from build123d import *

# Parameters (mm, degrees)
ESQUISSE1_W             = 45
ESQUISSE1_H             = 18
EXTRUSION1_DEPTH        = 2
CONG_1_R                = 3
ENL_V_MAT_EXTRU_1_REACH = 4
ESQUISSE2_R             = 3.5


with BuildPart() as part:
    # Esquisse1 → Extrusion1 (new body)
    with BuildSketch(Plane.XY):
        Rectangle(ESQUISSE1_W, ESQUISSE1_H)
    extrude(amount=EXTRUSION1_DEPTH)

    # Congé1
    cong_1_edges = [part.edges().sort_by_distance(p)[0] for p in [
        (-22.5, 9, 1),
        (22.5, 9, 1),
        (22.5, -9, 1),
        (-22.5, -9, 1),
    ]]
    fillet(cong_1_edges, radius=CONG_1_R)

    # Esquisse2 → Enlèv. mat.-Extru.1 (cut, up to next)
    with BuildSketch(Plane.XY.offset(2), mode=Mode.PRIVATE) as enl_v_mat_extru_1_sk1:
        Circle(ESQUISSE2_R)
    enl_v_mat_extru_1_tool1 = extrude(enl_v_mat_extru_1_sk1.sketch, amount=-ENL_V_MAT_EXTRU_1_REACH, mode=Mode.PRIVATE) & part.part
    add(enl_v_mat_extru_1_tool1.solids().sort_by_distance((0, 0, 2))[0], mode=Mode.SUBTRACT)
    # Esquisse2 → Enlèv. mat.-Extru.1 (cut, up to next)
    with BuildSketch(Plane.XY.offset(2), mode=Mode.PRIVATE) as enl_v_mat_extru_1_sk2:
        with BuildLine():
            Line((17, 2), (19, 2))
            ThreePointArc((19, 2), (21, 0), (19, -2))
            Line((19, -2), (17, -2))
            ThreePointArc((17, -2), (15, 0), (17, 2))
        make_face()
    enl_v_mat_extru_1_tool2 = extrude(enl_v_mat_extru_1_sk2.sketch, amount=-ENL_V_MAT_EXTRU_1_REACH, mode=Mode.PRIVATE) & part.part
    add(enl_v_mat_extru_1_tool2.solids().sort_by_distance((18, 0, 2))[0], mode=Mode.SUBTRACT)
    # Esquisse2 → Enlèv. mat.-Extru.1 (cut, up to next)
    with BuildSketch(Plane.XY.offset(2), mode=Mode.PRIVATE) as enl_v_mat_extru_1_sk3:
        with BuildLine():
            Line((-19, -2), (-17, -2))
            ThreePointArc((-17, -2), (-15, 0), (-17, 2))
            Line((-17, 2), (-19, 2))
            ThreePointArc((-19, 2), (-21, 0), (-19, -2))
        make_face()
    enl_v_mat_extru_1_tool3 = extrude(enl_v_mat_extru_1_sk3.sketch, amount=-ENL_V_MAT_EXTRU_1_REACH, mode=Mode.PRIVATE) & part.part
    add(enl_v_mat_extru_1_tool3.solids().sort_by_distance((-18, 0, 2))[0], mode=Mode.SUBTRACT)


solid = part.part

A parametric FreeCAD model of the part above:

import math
import FreeCAD as App
import Part
import Sketcher

V = App.Vector
Q = App.Units.Quantity


def edges_at(feature, points):
    """Names of the edges that pass closest to the given points."""
    edges = feature.Shape.Edges
    near = lambda p: min(range(len(edges)), key=lambda i: edges[i].distToShape(Part.Vertex(*p))[0])
    return sorted({f"Edge{near(p) + 1}" for p in points})

doc = App.newDocument("Part")
body = doc.addObject("PartDesign::Body", "Body")

sketch1 = body.newObject("Sketcher::SketchObject", "Sketch")
sketch1.AttachmentSupport = (doc.getObject("XY_Plane"), [""])
sketch1.MapMode = "FlatFace"
sketch1.addGeometry(Part.LineSegment(V(-22.5, 9, 0), V(-22.5, -9, 0)), False)
sketch1.addGeometry(Part.LineSegment(V(-22.5, -9, 0), V(22.5, -9, 0)), False)
sketch1.addGeometry(Part.LineSegment(V(22.5, -9, 0), V(22.5, 9, 0)), False)
sketch1.addGeometry(Part.LineSegment(V(22.5, 9, 0), V(-22.5, 9, 0)), False)
sketch1.addConstraint(Sketcher.Constraint("Coincident", 0, 2, 1, 1))
sketch1.addConstraint(Sketcher.Constraint("Coincident", 1, 2, 2, 1))
sketch1.addConstraint(Sketcher.Constraint("Coincident", 2, 2, 3, 1))
sketch1.addConstraint(Sketcher.Constraint("Coincident", 3, 2, 0, 1))
sketch1.addConstraint(Sketcher.Constraint("Vertical", 0))
sketch1.addConstraint(Sketcher.Constraint("Horizontal", 1))
sketch1.addConstraint(Sketcher.Constraint("Vertical", 2))
sketch1.addConstraint(Sketcher.Constraint("Horizontal", 3))
sketch1.addConstraint(Sketcher.Constraint("Symmetric", 0, 2, 2, 2, -1, 1))
sketch1.addConstraint(Sketcher.Constraint("DistanceX", 1, 1, 1, 2, Q("45 mm")))
sketch1.addConstraint(Sketcher.Constraint("DistanceY", 0, 2, 0, 1, Q("18 mm")))
pad1 = body.newObject("PartDesign::Pad", "Pad")
pad1.Profile = sketch1
pad1.Length = 2
doc.recompute()

fillet = body.newObject("PartDesign::Fillet", "Fillet")
fillet.Base = (pad1, edges_at(pad1, [
    (-22.5, 9, 1),
    (22.5, 9, 1),
    (22.5, -9, 1),
    (-22.5, -9, 1),
]))
fillet.Radius = 3

sketch2 = body.newObject("Sketcher::SketchObject", "Sketch001")
sketch2.AttachmentSupport = (doc.getObject("XY_Plane"), [""])
sketch2.MapMode = "FlatFace"
sketch2.AttachmentOffset = App.Placement(V(0, 0, 2), App.Rotation())
sketch2.addGeometry(Part.Circle(V(0, 0, 0), V(0, 0, 1), 3.5), False)
sketch2.addConstraint(Sketcher.Constraint("Coincident", 0, 3, -1, 1))
sketch2.addConstraint(Sketcher.Constraint("Diameter", 0, Q("7 mm")))
pocket1 = body.newObject("PartDesign::Pocket", "Pocket")
pocket1.Profile = sketch2
pocket1.Type = "UpToFirst"

sketch3 = body.newObject("Sketcher::SketchObject", "Sketch002")
sketch3.AttachmentSupport = (doc.getObject("XY_Plane"), [""])
sketch3.MapMode = "FlatFace"
sketch3.AttachmentOffset = App.Placement(V(0, 0, 2), App.Rotation())
sketch3.addGeometry(Part.LineSegment(V(19, 2, 0), V(17, 2, 0)), False)
sketch3.addGeometry(Part.ArcOfCircle(Part.Circle(V(17, 0, 0), V(0, 0, 1), 2), math.radians(90), math.radians(270)), False)
sketch3.addGeometry(Part.LineSegment(V(17, -2, 0), V(19, -2, 0)), False)
sketch3.addGeometry(Part.ArcOfCircle(Part.Circle(V(19, 0, 0), V(0, 0, 1), 2), math.radians(-90), math.radians(90)), False)
sketch3.addConstraint(Sketcher.Constraint("Tangent", 0, 2, 1, 1))
sketch3.addConstraint(Sketcher.Constraint("Tangent", 1, 2, 2, 1))
sketch3.addConstraint(Sketcher.Constraint("Tangent", 2, 2, 3, 1))
sketch3.addConstraint(Sketcher.Constraint("Tangent", 3, 2, 0, 1))
sketch3.addConstraint(Sketcher.Constraint("Horizontal", 0))
sketch3.addConstraint(Sketcher.Constraint("Horizontal", 2))
sketch3.addConstraint(Sketcher.Constraint("PointOnObject", 1, 3, -1))
sketch3.addConstraint(Sketcher.Constraint("Radius", 1, Q("2 mm")))
sketch3.addConstraint(Sketcher.Constraint("DistanceX", 0, 2, 0, 1, Q("2 mm")))
sketch3.addConstraint(Sketcher.Constraint("DistanceX", -1, 1, 1, 3, Q("17 mm")))
pocket2 = body.newObject("PartDesign::Pocket", "Pocket001")
pocket2.Profile = sketch3
pocket2.Type = "UpToFirst"

sketch4 = body.newObject("Sketcher::SketchObject", "Sketch003")
sketch4.AttachmentSupport = (doc.getObject("XY_Plane"), [""])
sketch4.MapMode = "FlatFace"
sketch4.AttachmentOffset = App.Placement(V(0, 0, 2), App.Rotation())
sketch4.addGeometry(Part.LineSegment(V(-19, -2, 0), V(-17, -2, 0)), False)
sketch4.addGeometry(Part.ArcOfCircle(Part.Circle(V(-17, 0, 0), V(0, 0, 1), 2), math.radians(-90), math.radians(90)), False)
sketch4.addGeometry(Part.LineSegment(V(-17, 2, 0), V(-19, 2, 0)), False)
sketch4.addGeometry(Part.ArcOfCircle(Part.Circle(V(-19, 0, 0), V(0, 0, 1), 2), math.radians(90), math.radians(270)), False)
sketch4.addConstraint(Sketcher.Constraint("Tangent", 0, 2, 1, 1))
sketch4.addConstraint(Sketcher.Constraint("Tangent", 1, 2, 2, 1))
sketch4.addConstraint(Sketcher.Constraint("Tangent", 2, 2, 3, 1))
sketch4.addConstraint(Sketcher.Constraint("Tangent", 3, 2, 0, 1))
sketch4.addConstraint(Sketcher.Constraint("Horizontal", 0))
sketch4.addConstraint(Sketcher.Constraint("Horizontal", 2))
sketch4.addConstraint(Sketcher.Constraint("PointOnObject", 1, 3, -1))
sketch4.addConstraint(Sketcher.Constraint("Radius", 1, Q("2 mm")))
sketch4.addConstraint(Sketcher.Constraint("DistanceX", 0, 1, 0, 2, Q("2 mm")))
sketch4.addConstraint(Sketcher.Constraint("DistanceX", 1, 3, -1, 1, Q("17 mm")))
pocket3 = body.newObject("PartDesign::Pocket", "Pocket002")
pocket3.Profile = sketch4
pocket3.Type = "UpToFirst"

doc.recompute()
